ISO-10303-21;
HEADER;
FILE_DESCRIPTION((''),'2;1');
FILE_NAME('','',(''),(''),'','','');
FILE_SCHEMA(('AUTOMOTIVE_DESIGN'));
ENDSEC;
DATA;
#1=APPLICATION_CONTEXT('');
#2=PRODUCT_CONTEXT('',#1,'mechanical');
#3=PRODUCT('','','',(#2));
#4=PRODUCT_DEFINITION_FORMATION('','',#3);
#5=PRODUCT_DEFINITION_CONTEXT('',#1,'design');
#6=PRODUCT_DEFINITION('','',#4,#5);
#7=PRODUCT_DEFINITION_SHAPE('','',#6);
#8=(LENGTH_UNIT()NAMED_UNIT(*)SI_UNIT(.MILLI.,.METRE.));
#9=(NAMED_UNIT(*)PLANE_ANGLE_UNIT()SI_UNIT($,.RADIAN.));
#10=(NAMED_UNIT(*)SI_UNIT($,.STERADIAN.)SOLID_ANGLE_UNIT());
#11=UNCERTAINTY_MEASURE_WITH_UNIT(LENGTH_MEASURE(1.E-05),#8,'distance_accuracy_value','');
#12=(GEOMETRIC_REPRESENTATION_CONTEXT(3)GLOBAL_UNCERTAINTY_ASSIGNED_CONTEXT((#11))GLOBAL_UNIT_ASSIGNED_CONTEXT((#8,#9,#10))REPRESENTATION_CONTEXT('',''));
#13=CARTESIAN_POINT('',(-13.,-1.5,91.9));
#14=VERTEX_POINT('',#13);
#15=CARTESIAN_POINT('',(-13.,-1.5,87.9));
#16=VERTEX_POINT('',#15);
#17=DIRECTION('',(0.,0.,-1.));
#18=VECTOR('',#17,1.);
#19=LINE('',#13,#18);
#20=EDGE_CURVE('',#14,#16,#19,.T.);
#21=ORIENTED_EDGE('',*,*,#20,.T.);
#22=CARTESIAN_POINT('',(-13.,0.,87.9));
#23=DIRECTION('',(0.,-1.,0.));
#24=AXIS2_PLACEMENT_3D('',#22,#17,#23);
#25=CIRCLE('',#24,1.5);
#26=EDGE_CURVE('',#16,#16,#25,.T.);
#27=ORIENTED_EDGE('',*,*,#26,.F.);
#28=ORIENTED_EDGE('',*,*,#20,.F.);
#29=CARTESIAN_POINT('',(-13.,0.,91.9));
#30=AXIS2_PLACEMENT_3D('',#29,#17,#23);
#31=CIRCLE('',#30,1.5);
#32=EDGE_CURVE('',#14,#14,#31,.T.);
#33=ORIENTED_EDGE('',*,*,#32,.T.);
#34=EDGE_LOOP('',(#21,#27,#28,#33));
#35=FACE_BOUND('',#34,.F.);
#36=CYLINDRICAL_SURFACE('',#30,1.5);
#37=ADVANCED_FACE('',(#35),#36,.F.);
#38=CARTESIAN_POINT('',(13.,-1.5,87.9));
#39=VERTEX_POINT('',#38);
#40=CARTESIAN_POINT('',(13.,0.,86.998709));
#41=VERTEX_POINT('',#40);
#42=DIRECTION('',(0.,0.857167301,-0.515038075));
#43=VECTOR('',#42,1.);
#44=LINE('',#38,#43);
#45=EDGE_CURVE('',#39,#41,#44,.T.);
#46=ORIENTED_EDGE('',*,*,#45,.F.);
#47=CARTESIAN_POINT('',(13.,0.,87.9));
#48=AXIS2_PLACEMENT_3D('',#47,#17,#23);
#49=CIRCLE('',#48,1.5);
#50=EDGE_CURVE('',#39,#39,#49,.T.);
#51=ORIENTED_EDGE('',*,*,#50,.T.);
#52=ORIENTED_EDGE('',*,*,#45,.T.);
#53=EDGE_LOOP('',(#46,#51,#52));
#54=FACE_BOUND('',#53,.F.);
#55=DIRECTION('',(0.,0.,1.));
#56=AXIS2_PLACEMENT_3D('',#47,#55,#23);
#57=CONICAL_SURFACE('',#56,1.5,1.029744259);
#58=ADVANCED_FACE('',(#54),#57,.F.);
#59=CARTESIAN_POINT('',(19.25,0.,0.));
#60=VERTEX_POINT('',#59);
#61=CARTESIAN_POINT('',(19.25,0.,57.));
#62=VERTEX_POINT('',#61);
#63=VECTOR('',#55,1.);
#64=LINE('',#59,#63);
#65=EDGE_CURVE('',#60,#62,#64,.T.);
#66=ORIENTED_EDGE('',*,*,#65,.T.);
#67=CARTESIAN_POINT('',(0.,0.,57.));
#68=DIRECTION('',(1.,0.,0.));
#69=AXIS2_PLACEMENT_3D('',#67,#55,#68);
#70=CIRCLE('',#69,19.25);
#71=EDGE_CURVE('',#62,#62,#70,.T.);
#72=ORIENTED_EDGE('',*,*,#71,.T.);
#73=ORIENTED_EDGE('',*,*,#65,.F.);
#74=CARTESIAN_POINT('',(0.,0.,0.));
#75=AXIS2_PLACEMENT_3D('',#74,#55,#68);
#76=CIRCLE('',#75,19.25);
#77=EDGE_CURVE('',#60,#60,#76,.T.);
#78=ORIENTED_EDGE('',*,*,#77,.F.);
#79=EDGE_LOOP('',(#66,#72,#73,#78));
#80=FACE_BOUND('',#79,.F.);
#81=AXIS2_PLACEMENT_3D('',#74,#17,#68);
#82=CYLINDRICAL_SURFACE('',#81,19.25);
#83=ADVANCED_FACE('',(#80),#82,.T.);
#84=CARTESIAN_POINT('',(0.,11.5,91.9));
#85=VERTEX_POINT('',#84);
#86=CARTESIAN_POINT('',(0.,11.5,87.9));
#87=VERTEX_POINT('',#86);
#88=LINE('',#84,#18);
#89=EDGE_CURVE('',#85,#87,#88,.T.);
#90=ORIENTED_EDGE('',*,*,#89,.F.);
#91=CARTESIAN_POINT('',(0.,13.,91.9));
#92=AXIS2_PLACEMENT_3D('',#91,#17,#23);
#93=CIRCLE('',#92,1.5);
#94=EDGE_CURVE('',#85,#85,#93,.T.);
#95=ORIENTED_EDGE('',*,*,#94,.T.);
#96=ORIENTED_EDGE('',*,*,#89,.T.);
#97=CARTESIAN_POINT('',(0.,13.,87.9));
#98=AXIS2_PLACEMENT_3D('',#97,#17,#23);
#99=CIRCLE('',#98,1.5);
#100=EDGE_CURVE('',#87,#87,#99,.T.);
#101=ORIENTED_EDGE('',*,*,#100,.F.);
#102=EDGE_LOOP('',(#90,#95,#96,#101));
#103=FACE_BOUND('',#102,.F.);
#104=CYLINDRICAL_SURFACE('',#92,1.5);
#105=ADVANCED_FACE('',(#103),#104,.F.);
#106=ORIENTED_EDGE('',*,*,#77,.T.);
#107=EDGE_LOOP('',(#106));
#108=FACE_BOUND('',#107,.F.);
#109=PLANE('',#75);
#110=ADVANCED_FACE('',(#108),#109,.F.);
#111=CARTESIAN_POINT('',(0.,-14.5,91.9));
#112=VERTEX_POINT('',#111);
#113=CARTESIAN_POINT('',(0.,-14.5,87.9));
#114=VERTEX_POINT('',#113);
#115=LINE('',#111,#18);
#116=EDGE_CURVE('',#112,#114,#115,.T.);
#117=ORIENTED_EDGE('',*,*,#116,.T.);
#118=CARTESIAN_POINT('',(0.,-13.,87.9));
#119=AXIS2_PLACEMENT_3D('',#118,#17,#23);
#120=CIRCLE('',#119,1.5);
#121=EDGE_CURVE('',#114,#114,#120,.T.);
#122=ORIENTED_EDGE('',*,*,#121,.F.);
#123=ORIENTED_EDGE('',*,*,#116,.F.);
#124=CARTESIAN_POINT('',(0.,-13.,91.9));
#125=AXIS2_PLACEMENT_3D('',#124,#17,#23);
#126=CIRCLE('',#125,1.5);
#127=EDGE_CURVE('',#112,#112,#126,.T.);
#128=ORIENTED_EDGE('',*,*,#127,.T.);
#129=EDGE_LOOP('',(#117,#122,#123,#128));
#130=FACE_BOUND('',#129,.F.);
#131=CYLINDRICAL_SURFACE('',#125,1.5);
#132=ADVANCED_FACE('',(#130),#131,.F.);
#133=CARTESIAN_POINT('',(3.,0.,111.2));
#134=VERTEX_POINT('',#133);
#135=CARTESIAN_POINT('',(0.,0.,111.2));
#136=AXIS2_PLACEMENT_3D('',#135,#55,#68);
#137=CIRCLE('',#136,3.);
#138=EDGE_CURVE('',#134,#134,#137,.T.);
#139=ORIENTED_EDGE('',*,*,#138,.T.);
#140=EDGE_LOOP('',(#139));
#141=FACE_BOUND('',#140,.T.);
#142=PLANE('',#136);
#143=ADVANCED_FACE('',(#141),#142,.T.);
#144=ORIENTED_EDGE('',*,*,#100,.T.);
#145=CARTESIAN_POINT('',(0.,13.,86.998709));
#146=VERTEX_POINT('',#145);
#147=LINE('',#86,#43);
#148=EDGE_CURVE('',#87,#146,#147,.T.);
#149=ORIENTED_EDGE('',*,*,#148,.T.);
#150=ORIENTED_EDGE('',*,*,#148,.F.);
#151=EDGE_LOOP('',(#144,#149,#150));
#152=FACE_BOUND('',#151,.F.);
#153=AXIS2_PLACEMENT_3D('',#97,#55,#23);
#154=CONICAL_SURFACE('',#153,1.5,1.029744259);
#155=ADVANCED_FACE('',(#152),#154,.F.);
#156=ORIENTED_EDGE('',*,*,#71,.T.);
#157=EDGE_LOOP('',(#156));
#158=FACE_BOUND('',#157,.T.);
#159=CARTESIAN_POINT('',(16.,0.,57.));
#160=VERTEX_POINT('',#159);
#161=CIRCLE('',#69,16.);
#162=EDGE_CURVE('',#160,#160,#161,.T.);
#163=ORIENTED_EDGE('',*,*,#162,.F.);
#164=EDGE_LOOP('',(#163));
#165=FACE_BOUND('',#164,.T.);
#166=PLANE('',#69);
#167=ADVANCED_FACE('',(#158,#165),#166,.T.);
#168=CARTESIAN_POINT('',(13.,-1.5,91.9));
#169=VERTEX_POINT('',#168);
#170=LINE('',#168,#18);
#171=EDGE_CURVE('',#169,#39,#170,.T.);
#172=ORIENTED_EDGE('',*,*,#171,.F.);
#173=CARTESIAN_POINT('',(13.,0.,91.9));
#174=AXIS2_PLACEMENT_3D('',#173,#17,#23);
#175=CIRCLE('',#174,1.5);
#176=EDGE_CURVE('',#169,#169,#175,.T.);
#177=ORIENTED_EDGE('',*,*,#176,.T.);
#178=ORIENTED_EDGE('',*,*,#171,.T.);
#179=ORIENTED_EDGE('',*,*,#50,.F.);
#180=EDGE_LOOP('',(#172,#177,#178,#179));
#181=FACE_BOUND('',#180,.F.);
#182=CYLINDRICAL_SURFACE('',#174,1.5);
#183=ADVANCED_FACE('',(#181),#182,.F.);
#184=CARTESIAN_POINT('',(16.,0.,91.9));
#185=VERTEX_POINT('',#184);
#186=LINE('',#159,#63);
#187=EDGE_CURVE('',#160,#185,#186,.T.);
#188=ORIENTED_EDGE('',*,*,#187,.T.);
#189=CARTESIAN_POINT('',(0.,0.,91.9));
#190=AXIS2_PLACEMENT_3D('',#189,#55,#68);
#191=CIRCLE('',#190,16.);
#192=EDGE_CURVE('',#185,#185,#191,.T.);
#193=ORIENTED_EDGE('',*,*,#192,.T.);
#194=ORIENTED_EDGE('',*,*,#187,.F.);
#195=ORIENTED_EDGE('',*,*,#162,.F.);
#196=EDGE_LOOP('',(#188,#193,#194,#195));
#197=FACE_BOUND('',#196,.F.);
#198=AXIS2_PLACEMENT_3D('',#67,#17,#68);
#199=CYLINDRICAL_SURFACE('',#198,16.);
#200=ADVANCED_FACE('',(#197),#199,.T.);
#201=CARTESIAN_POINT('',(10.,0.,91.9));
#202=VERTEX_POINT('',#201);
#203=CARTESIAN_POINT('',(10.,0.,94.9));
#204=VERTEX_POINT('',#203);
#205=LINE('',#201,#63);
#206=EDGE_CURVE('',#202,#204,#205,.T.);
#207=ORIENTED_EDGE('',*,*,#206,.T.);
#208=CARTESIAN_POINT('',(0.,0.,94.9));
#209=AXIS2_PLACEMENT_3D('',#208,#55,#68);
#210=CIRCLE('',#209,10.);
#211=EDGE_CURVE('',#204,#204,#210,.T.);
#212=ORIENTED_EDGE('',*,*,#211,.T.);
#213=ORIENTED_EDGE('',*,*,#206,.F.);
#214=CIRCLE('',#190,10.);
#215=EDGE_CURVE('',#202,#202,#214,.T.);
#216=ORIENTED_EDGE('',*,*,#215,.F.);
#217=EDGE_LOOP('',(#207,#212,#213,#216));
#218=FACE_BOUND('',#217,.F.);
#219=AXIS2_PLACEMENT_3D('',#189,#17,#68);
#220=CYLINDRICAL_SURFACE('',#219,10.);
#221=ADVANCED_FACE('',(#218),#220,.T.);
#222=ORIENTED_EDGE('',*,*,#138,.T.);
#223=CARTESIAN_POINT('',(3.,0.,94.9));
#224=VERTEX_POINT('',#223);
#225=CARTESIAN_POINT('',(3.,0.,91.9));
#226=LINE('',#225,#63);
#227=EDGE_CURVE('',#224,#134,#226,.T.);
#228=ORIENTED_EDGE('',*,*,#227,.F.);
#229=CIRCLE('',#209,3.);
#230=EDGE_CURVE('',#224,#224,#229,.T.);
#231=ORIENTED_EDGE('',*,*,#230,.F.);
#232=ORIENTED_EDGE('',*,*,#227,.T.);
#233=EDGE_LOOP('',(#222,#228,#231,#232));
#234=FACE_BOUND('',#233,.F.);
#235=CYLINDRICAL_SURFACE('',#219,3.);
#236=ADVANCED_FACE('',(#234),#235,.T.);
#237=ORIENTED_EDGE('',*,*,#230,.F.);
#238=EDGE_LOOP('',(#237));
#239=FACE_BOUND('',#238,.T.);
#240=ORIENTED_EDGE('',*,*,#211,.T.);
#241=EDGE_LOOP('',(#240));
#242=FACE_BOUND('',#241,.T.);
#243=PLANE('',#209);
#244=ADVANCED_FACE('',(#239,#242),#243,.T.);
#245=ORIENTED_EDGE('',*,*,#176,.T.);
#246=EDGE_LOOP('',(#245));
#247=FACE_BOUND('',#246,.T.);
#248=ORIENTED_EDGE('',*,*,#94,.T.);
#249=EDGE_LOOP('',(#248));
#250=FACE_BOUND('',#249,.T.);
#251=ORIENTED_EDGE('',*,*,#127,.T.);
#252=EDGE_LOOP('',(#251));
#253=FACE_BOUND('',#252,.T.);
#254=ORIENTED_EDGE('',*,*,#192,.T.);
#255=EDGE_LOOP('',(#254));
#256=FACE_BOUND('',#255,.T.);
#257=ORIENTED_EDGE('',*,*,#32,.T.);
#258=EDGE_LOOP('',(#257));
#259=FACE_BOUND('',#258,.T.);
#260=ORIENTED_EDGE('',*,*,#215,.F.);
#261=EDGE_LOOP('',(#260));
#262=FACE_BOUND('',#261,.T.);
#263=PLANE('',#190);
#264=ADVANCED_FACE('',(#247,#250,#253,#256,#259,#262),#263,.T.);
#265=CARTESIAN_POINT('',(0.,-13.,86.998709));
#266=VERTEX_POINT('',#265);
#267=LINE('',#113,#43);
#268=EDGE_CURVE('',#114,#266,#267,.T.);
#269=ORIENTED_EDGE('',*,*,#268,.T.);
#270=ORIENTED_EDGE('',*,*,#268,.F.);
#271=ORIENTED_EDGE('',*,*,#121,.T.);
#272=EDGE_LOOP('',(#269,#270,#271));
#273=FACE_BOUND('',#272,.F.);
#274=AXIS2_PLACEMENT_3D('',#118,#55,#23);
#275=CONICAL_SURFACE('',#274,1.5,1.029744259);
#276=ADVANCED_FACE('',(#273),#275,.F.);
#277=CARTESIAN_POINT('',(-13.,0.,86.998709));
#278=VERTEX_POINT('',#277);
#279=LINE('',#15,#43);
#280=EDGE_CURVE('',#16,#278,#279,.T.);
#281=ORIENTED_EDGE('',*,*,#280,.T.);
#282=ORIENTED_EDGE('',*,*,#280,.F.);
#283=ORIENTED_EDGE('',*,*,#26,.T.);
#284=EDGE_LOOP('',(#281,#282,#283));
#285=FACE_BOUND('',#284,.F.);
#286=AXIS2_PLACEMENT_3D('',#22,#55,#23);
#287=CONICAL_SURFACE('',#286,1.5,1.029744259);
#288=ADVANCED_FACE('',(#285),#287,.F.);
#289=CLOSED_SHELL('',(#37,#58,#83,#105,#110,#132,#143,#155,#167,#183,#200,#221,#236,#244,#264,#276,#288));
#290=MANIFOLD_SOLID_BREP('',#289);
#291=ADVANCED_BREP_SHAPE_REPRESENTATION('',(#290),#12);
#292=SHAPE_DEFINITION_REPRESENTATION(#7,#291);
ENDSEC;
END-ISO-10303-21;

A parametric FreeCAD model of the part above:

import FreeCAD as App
import Part
import Sketcher
from FreeCAD import Vector
Q = App.Units.Quantity

doc = App.newDocument("Part")
body = doc.addObject("PartDesign::Body", "Body")

sketch1 = body.newObject("Sketcher::SketchObject", "Sketch")
sketch1.AttachmentSupport = (doc.getObject("XY_Plane"), [""])
sketch1.MapMode = "FlatFace"
sketch1.addGeometry(Part.Circle(Vector(0, 0, 0), Vector(0, 0, 1), 19), False)
sketch1.addConstraint([
    Sketcher.Constraint("Coincident", 0, 3, -1, 1),
    Sketcher.Constraint("Diameter", 0, Q("38.5 mm")),
])
pad1 = body.newObject("PartDesign::Pad", "Pad")
pad1.Profile = sketch1
pad1.Length = 57

sketch2 = body.newObject("Sketcher::SketchObject", "Sketch001")
sketch2.AttachmentSupport = (doc.getObject("XY_Plane"), [""])
sketch2.MapMode = "FlatFace"
sketch2.AttachmentOffset = App.Placement(Vector(0, 0, 57), App.Rotation())
sketch2.addGeometry(Part.Circle(Vector(0, 0, 0), Vector(0, 0, 1), 16), False)
sketch2.addConstraint([
    Sketcher.Constraint("Coincident", 0, 3, -1, 1),
    Sketcher.Constraint("Diameter", 0, Q("32 mm")),
])
pad2 = body.newObject("PartDesign::Pad", "Pad001")
pad2.Profile = sketch2
pad2.Length = 34.9

sketch3 = body.newObject("Sketcher::SketchObject", "Sketch002")
sketch3.AttachmentSupport = (doc.getObject("XY_Plane"), [""])
sketch3.MapMode = "FlatFace"
sketch3.AttachmentOffset = App.Placement(Vector(0, 0, 91.9), App.Rotation())
sketch3.addGeometry(Part.Circle(Vector(0, 0, 0), Vector(0, 0, 1), 3), False)
sketch3.addConstraint([
    Sketcher.Constraint("Coincident", 0, 3, -1, 1),
    Sketcher.Constraint("Diameter", 0, Q("6 mm")),
])
pad3 = body.newObject("PartDesign::Pad", "Pad002")
pad3.Profile = sketch3
pad3.Length = 19.3

sketch4 = body.newObject("Sketcher::SketchObject", "Sketch003")
sketch4.AttachmentSupport = (doc.getObject("XY_Plane"), [""])
sketch4.MapMode = "FlatFace"
sketch4.AttachmentOffset = App.Placement(Vector(0, 0, 91.9), App.Rotation())
sketch4.addGeometry([
    Part.Circle(Vector(0, 0, 0), Vector(0, 0, 1), 10),
    Part.Circle(Vector(0, 0, 0), Vector(0, 0, 1), 3),
], False)
sketch4.addConstraint([
    Sketcher.Constraint("Coincident", 0, 3, -1, 1),
    Sketcher.Constraint("Coincident", 1, 3, -1, 1),
    Sketcher.Constraint("Diameter", 0, Q("20 mm")),
    Sketcher.Constraint("Diameter", 1, Q("6 mm")),
])
pad4 = body.newObject("PartDesign::Pad", "Pad003")
pad4.Profile = sketch4
pad4.Length = 3

sketch5 = body.newObject("Sketcher::SketchObject", "Sketch004")
sketch5.AttachmentSupport = (doc.getObject("XY_Plane"), [""])
sketch5.MapMode = "FlatFace"
sketch5.AttachmentOffset = App.Placement(Vector(0, 0, 91.9), App.Rotation())
sketch5.addGeometry([
    Part.Circle(Vector(0, 13, 0), Vector(0, 0, 1), 1.5),
    Part.Circle(Vector(-13, 0, 0), Vector(0, 0, 1), 1.5),
    Part.Circle(Vector(0, -13, 0), Vector(0, 0, 1), 1.5),
    Part.Circle(Vector(13, 0, 0), Vector(0, 0, 1), 1.5),
], False)
sketch5.addConstraint([
    Sketcher.Constraint("Equal", 0, 1),
    Sketcher.Constraint("Equal", 1, 2),
    Sketcher.Constraint("Equal", 2, 3),
    Sketcher.Constraint("Symmetric", 0, 3, 2, 3, -1, 1),
    Sketcher.Constraint("Symmetric", 1, 3, 3, 3, -1, 1),
    Sketcher.Constraint("PointOnObject", 0, 3, -2),
    Sketcher.Constraint("PointOnObject", 1, 3, -1),
    Sketcher.Constraint("Diameter", 0, Q("3 mm")),
    Sketcher.Constraint("DistanceY", -1, 1, 0, 3, Q("13 mm")),
    Sketcher.Constraint("DistanceX", 1, 3, -1, 1, Q("13 mm")),
])
doc.recompute()
hole = body.newObject("PartDesign::Hole", "Hole")
hole.Profile = sketch5
hole.ThreadType = "None"
hole.Diameter = 3
hole.DepthType = "Dimension"
hole.Depth = 4
hole.DrillPoint = "Angled"
hole.DrillPointAngle = 118

doc.recompute()
